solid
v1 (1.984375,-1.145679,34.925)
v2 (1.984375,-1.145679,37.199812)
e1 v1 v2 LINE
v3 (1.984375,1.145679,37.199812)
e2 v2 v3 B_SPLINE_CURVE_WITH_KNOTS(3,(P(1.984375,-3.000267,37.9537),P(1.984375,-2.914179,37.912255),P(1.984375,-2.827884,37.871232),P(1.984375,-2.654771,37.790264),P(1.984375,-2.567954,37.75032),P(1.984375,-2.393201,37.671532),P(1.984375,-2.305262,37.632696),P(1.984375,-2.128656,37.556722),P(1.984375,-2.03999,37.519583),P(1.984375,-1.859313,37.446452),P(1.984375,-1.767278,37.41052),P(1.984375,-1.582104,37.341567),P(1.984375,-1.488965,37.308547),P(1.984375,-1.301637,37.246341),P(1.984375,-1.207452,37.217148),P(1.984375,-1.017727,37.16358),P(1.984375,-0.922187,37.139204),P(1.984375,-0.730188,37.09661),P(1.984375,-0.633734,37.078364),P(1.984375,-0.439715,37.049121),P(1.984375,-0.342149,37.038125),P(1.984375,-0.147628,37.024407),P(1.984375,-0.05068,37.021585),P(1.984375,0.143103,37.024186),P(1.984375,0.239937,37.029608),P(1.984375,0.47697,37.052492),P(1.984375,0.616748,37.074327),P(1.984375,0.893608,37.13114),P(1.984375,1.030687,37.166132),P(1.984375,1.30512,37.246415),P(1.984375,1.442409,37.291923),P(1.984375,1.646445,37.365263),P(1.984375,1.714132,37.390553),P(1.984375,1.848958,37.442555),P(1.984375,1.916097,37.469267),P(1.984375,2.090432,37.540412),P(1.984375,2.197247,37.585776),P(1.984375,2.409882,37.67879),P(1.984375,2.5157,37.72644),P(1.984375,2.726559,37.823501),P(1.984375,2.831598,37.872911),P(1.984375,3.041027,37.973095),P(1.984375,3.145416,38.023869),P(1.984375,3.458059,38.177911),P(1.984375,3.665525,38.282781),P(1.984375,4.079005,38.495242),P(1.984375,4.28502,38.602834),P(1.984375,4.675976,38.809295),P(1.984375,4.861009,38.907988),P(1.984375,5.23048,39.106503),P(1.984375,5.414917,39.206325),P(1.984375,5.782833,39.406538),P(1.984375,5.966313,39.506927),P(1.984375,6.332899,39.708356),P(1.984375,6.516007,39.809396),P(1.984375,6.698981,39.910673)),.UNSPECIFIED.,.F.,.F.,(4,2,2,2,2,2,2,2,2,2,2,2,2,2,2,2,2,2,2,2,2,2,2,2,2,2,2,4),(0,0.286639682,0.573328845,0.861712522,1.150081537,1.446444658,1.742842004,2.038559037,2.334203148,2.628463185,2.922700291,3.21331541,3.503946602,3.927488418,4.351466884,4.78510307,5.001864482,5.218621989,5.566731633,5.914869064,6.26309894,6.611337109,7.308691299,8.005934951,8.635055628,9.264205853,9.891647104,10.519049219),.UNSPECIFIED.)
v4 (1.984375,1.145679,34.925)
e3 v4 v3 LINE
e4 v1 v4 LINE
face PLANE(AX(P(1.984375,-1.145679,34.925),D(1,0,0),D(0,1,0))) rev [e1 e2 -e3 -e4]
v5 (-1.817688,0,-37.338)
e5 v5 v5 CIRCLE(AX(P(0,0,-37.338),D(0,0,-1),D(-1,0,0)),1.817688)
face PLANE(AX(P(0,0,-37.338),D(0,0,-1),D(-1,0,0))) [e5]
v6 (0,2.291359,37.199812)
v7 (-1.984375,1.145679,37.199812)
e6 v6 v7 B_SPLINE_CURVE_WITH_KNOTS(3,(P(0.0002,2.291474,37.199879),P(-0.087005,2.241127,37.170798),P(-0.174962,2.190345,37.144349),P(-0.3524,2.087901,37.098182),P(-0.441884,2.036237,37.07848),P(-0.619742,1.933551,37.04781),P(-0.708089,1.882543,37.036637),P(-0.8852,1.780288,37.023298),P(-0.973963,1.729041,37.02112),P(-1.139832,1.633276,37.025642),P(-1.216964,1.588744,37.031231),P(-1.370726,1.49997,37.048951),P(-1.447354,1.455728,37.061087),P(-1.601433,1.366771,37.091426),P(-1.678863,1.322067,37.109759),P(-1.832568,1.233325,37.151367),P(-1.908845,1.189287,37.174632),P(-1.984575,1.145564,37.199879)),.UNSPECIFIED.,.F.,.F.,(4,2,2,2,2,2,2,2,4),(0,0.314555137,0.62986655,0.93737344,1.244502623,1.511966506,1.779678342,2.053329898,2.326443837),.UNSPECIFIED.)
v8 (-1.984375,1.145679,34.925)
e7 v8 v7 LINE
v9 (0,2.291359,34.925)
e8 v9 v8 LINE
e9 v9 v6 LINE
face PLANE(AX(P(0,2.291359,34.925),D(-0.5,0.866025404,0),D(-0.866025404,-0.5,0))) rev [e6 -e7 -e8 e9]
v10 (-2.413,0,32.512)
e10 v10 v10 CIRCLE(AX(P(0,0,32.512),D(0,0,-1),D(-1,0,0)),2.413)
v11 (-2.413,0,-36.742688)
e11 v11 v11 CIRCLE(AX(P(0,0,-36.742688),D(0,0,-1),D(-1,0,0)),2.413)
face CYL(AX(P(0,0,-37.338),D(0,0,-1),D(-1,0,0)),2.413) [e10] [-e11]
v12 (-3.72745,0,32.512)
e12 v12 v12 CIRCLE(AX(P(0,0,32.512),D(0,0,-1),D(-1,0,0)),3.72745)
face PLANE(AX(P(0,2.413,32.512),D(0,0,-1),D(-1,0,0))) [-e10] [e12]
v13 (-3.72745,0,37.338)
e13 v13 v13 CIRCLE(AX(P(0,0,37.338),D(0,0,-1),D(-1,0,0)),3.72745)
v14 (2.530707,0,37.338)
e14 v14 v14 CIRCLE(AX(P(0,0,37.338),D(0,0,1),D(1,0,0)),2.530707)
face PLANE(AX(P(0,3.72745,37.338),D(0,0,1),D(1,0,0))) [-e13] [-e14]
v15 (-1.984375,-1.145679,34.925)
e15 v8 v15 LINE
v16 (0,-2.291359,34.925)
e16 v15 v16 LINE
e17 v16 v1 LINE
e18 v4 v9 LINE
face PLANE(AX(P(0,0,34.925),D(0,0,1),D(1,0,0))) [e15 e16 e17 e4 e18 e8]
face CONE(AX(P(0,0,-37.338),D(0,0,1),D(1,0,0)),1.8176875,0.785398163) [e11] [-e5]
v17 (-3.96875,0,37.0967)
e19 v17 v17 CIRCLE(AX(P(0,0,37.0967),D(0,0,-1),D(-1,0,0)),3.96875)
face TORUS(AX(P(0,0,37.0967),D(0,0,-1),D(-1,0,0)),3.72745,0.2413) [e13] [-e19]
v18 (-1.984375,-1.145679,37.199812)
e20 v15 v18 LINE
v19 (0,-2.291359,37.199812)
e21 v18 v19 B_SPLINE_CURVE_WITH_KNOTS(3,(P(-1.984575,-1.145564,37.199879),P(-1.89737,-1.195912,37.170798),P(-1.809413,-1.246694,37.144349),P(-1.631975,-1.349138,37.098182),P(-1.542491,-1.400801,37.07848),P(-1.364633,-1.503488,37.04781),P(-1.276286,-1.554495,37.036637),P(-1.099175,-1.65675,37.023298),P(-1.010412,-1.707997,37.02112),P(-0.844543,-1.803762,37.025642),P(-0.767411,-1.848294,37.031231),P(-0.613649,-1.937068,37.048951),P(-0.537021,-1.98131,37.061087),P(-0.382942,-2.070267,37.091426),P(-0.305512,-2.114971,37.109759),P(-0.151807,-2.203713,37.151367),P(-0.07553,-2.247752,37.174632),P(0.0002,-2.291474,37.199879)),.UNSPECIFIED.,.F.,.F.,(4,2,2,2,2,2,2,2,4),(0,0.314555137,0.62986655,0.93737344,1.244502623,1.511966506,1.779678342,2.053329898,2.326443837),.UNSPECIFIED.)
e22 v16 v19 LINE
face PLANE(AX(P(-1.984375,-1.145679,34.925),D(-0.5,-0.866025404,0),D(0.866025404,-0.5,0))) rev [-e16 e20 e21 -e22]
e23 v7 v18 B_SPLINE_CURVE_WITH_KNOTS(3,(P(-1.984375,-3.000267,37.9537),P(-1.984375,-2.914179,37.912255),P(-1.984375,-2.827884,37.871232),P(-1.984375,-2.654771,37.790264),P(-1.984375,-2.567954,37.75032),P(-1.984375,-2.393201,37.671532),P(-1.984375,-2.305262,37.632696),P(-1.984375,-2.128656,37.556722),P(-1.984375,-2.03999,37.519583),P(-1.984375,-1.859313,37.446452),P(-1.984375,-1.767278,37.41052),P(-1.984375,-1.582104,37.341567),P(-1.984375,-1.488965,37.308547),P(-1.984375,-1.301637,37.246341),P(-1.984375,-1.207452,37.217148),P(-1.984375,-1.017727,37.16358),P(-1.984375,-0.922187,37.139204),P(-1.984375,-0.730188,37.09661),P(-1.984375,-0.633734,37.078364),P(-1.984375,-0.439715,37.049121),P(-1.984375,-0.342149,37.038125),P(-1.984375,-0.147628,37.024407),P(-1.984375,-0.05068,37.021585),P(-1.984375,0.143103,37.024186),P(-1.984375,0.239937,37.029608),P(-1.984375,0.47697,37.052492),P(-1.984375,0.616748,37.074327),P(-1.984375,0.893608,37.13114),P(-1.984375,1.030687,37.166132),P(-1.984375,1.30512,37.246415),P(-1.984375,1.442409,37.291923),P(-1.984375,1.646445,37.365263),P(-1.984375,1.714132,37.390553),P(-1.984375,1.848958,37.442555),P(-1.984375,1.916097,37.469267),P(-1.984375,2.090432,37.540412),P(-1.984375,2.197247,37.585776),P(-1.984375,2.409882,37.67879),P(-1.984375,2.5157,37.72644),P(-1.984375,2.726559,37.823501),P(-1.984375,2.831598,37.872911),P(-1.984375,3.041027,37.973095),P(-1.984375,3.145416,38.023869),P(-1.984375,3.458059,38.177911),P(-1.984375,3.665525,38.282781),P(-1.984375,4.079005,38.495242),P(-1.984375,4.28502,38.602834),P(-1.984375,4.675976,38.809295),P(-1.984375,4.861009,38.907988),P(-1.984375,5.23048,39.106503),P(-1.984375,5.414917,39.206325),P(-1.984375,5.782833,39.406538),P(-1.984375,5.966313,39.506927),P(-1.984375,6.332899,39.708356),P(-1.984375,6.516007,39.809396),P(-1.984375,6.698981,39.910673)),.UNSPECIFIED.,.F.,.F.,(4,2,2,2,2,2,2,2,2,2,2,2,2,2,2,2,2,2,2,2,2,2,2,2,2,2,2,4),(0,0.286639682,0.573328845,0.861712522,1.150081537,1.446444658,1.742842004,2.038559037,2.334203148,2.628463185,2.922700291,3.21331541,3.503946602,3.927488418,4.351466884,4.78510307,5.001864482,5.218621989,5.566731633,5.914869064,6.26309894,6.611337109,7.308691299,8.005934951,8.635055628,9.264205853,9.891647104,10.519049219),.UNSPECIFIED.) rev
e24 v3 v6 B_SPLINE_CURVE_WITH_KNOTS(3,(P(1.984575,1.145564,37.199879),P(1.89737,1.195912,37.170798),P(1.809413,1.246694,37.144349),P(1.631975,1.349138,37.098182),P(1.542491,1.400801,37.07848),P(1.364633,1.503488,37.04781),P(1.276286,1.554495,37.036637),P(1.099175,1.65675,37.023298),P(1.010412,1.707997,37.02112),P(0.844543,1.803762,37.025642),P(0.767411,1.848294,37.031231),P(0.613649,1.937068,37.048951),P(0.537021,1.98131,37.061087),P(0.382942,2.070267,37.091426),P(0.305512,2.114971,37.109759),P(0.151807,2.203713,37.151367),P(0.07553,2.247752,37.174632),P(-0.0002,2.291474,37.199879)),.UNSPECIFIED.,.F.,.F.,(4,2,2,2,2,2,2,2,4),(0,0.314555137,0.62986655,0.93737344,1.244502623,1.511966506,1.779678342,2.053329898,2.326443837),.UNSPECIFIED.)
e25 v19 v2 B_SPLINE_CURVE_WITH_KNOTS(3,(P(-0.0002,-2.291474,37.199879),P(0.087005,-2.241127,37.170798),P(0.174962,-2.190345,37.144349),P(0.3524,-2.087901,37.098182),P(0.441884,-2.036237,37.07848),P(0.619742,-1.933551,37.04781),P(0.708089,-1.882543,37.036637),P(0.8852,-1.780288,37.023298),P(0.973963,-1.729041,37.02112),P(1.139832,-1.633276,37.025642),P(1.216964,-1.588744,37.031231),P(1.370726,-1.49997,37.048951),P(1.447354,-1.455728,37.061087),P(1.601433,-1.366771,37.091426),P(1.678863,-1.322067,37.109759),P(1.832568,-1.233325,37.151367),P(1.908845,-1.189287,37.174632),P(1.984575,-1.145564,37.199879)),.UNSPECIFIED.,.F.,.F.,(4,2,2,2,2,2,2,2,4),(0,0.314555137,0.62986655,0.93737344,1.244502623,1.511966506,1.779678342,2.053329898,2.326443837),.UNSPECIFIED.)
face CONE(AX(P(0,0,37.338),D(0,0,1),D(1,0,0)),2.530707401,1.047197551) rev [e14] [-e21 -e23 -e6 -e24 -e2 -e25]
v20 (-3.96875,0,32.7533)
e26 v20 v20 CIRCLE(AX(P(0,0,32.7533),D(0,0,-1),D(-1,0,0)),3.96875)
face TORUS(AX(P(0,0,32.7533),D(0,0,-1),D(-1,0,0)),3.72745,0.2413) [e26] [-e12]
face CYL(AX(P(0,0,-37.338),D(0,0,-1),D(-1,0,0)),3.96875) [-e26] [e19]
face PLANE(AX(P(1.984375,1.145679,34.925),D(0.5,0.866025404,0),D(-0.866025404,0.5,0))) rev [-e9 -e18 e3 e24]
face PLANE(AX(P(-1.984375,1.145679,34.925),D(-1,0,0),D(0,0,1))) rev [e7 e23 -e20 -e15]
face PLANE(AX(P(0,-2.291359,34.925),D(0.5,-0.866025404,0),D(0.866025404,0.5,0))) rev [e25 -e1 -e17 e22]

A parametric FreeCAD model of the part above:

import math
import FreeCAD as App
import Part
import Sketcher

V = App.Vector
Q = App.Units.Quantity


def add_polygon(sketch, points):
    """Adds a closed chain of lines whose ends are joined by coincident constraints."""
    first, n = sketch.GeometryCount, len(points)
    for a, b in zip(points, points[1:] + points[:1]):
        sketch.addGeometry(Part.LineSegment(App.Vector(*a, 0), App.Vector(*b, 0)), False)
    for i in range(n):
        sketch.addConstraint(Sketcher.Constraint("Coincident", first + i, 2, first + (i + 1) % n, 1))

doc = App.newDocument("Part")
params = doc.addObject("Spreadsheet::Sheet", "Params")
for row, (alias, value) in enumerate([
    ("sketch1_height", "2.94 in"),
    ("sketch1_height2", "0.171 in"),
    ("revolution_angle", "360 deg"),
    ("pocket1_length", "0.095 in"),
    ("groove_angle", "360 deg"),
], start=1):
    params.set(f"A{row}", alias)
    params.set(f"B{row}", "=" + value)
    params.setAlias(f"B{row}", alias)

body = doc.addObject("PartDesign::Body", "Body")

# Sketch on YZ plane
sketch1 = doc.addObject("Sketcher::SketchObject", "Sketch")
body.addObject(sketch1)
sketch1.AttachmentSupport = (doc.YZ_Plane, [""])
sketch1.MapMode = "FlatFace"
sketch1.addGeometry(Part.LineSegment(V(0, -37.338, 0), V(1.817687, -37.338, 0)), False)
sketch1.addGeometry(Part.LineSegment(V(1.817687, -37.338, 0), V(2.413, -36.742688, 0)), False)
sketch1.addGeometry(Part.LineSegment(V(2.413, -36.742688, 0), V(2.413, 32.512, 0)), False)
sketch1.addGeometry(Part.LineSegment(V(2.413, 32.512, 0), V(3.72745, 32.512, 0)), False)
sketch1.addGeometry(Part.ArcOfCircle(Part.Circle(V(3.72745, 32.7533, 0), V(0, 0, 1), 0.2413), math.radians(-90), math.radians(0)), False)
sketch1.addGeometry(Part.LineSegment(V(3.96875, 32.7533, 0), V(3.96875, 37.0967, 0)), False)
sketch1.addGeometry(Part.ArcOfCircle(Part.Circle(V(3.72745, 37.0967, 0), V(0, 0, 1), 0.2413), math.radians(0), math.radians(90)), False)
sketch1.addGeometry(Part.LineSegment(V(3.72745, 37.338, 0), V(0, 37.338, 0)), False)
sketch1.addGeometry(Part.LineSegment(V(0, 37.338, 0), V(0, -37.338, 0)), False)
sketch1.addConstraint(Sketcher.Constraint("Coincident", 0, 2, 1, 1))
sketch1.addConstraint(Sketcher.Constraint("Coincident", 1, 2, 2, 1))
sketch1.addConstraint(Sketcher.Constraint("Coincident", 2, 2, 3, 1))
sketch1.addConstraint(Sketcher.Constraint("Tangent", 3, 2, 4, 1))
sketch1.addConstraint(Sketcher.Constraint("Tangent", 4, 2, 5, 1))
sketch1.addConstraint(Sketcher.Constraint("Tangent", 5, 2, 6, 1))
sketch1.addConstraint(Sketcher.Constraint("Tangent", 6, 2, 7, 1))
sketch1.addConstraint(Sketcher.Constraint("Coincident", 7, 2, 8, 1))
sketch1.addConstraint(Sketcher.Constraint("Coincident", 8, 2, 0, 1))
sketch1.addConstraint(Sketcher.Constraint("Horizontal", 0))
sketch1.addConstraint(Sketcher.Constraint("Vertical", 2))
sketch1.addConstraint(Sketcher.Constraint("Horizontal", 3))
sketch1.addConstraint(Sketcher.Constraint("Vertical", 5))
sketch1.addConstraint(Sketcher.Constraint("Horizontal", 7))
sketch1.addConstraint(Sketcher.Constraint("Vertical", 8))
sketch1.addConstraint(Sketcher.Constraint("Equal", 4, 6))
sketch1.addConstraint(Sketcher.Constraint("Symmetric", 7, 2, 8, 2, -1, 1))
sketch1.addConstraint(Sketcher.Constraint("Angle", 1, Q("45 deg")))
sketch1.addConstraint(Sketcher.Constraint("DistanceY", 8, 2, 8, 1, Q("2.94 in")))
sketch1.addConstraint(Sketcher.Constraint("Radius", 4, Q("0.0095 in")))
sketch1.addConstraint(Sketcher.Constraint("DistanceY", 5, 1, 5, 2, Q("0.171 in")))
sketch1.addConstraint(Sketcher.Constraint("DistanceX", -1, 1, 1, 2, Q("0.095 in")))
sketch1.addConstraint(Sketcher.Constraint("DistanceX", -1, 1, 4, 2, Q("0.15625 in")))
sketch1.addConstraint(Sketcher.Constraint("Distance", 1, Q("0.841899 mm")))
sketch1.setExpression("Constraints[18]", "Params.sketch1_height")
sketch1.setExpression("Constraints[20]", "Params.sketch1_height2")
revolution = doc.addObject("PartDesign::Revolution", "Revolution")
body.addObject(revolution)
revolution.Profile = sketch1
revolution.ReferenceAxis = (sketch1, ["V_Axis"])
revolution.setExpression("Angle", "Params.revolution_angle")

# Sketch on XY plane
sketch2 = doc.addObject("Sketcher::SketchObject", "Sketch001")
body.addObject(sketch2)
sketch2.AttachmentSupport = (doc.XY_Plane, [""])
sketch2.MapMode = "FlatFace"
sketch2.AttachmentOffset = App.Placement(V(0, 0, 1.47 * 25.4), App.Rotation())
add_polygon(sketch2, [(-1.984375, 1.145679), (-1.984375, -1.145679), (0, -2.291359), (1.984375, -1.145679), (1.984375, 1.145679), (0, 2.291359)])  # lines 0-5
sketch2.addConstraint(Sketcher.Constraint("Vertical", 0))
sketch2.addConstraint(Sketcher.Constraint("Vertical", 3))
sketch2.addConstraint(Sketcher.Constraint("Symmetric", 0, 2, 3, 2, -1, 1))
sketch2.addConstraint(Sketcher.Constraint("Symmetric", 1, 2, 4, 2, -1, 1))
sketch2.addConstraint(Sketcher.Constraint("PointOnObject", 1, 2, -2))
sketch2.addConstraint(Sketcher.Constraint("Parallel", 2, 5))
sketch2.addConstraint(Sketcher.Constraint("Horizontal", 0, 2, 2, 2))
sketch2.addConstraint(Sketcher.Constraint("Angle", 1, Q("-30 deg")))
sketch2.addConstraint(Sketcher.Constraint("DistanceX", 0, 2, -1, 1, Q("0.078125 in")))
sketch2.addConstraint(Sketcher.Constraint("DistanceY", 0, 2, 0, 1, Q("2.291359 mm")))
pocket1 = doc.addObject("PartDesign::Pocket", "Pocket")
body.addObject(pocket1)
pocket1.Profile = sketch2
pocket1.setExpression("Length", "Params.pocket1_length")

# Sketch on YZ plane
sketch3 = doc.addObject("Sketcher::SketchObject", "Sketch002")
body.addObject(sketch3)
sketch3.AttachmentSupport = (doc.YZ_Plane, [""])
sketch3.MapMode = "FlatFace"
add_polygon(sketch3, [(0, 37.338), (-2.530707, 37.338), (0, 35.876895)])  # lines 0-2
sketch3.addConstraint(Sketcher.Constraint("Horizontal", 0))
sketch3.addConstraint(Sketcher.Constraint("Vertical", 2))
sketch3.addConstraint(Sketcher.Constraint("PointOnObject", 1, 2, -2))
sketch3.addConstraint(Sketcher.Constraint("Angle", 1, Q("-30 deg")))
sketch3.addConstraint(Sketcher.Constraint("DistanceY", -1, 1, 0, 2, Q("1.47 in")))
sketch3.addConstraint(Sketcher.Constraint("Distance", 1, Q("2.922209 mm")))
groove = doc.addObject("PartDesign::Groove", "Groove")
body.addObject(groove)
groove.Profile = sketch3
groove.ReferenceAxis = (sketch3, ["V_Axis"])
groove.setExpression("Angle", "Params.groove_angle")

doc.recompute()
